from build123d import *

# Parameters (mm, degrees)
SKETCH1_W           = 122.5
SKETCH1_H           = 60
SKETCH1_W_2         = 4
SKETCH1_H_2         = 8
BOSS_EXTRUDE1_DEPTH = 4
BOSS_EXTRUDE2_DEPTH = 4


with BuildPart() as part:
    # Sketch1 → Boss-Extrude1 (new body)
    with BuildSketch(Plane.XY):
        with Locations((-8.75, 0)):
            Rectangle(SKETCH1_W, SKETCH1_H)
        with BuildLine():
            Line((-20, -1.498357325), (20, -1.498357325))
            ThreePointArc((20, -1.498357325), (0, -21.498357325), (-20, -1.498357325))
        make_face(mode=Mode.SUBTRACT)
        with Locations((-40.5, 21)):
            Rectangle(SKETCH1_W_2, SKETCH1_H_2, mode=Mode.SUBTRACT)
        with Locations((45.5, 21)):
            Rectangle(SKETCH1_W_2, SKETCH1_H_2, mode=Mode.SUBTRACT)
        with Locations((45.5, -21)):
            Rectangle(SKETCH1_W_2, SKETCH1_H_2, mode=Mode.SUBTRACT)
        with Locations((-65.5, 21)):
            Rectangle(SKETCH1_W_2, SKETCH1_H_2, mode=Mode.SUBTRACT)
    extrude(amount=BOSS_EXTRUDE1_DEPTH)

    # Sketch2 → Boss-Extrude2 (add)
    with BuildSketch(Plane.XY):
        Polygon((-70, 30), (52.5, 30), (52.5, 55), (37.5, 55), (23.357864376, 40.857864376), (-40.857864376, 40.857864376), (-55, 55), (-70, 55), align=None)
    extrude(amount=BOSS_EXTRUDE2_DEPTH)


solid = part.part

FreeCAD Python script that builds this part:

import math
import FreeCAD as App
import Part
import Sketcher

V = App.Vector
Q = App.Units.Quantity


def add_polygon(sketch, points):
    """Adds a closed chain of lines whose ends are joined by coincident constraints."""
    first, n = sketch.GeometryCount, len(points)
    for a, b in zip(points, points[1:] + points[:1]):
        sketch.addGeometry(Part.LineSegment(App.Vector(*a, 0), App.Vector(*b, 0)), False)
    for i in range(n):
        sketch.addConstraint(Sketcher.Constraint("Coincident", first + i, 2, first + (i + 1) % n, 1))

doc = App.newDocument("Part")
params = doc.addObject("Spreadsheet::Sheet", "Params")
for row, (alias, value) in enumerate([
    ("sketch1_radius", "20 mm"),
    ("sketch1_width", "4 mm"),
    ("sketch1_height", "60 mm"),
    ("sketch1_height2", "8 mm"),
    ("sketch1_width2", "122.5 mm"),
    ("pad1_length", "4 mm"),
    ("sketch2_width", "15 mm"),
    ("sketch2_height", "25 mm"),
    ("sketch2_length", "20 mm"),
    ("sketch2_width2", "122.5 mm"),
    ("pad2_length", "4 mm"),
], start=1):
    params.set(f"A{row}", alias)
    params.set(f"B{row}", "=" + value)
    params.setAlias(f"B{row}", alias)

body = doc.addObject("PartDesign::Body", "Body")

# Sketch on XY plane
sketch1 = body.newObject("Sketcher::SketchObject", "Sketch")
sketch1.AttachmentSupport = (doc.getObject("XY_Plane"), [""])
sketch1.MapMode = "FlatFace"
add_polygon(sketch1, [(-70, 30), (-70, -30), (52.5, -30), (52.5, 30)])  # lines 0-3
add_polygon(sketch1, [(47.5, -25), (43.5, -25), (43.5, -17), (47.5, -17)])  # lines 4-7
sketch1.addGeometry(Part.ArcOfCircle(Part.Circle(V(0, -1.5, 0), V(0, 0, 1), 20), math.radians(180), math.radians(360)), False)  # 8
sketch1.addGeometry(Part.LineSegment(V(-20, -1.5, 0), V(20, -1.5, 0)), False)  # 9
add_polygon(sketch1, [(-63.5, 17), (-67.5, 17), (-67.5, 25), (-63.5, 25)])  # lines 10-13
add_polygon(sketch1, [(-38.5, 17), (-42.5, 17), (-42.5, 25), (-38.5, 25)])  # lines 14-17
add_polygon(sketch1, [(47.5, 17), (43.5, 17), (43.5, 25), (47.5, 25)])  # lines 18-21
sketch1.addConstraint([
    Sketcher.Constraint("Coincident", 8, 1, 9, 1),
    Sketcher.Constraint("Coincident", 9, 2, 8, 2),
    Sketcher.Constraint("Vertical", 0),
    Sketcher.Constraint("Horizontal", 1),
    Sketcher.Constraint("Vertical", 2),
    Sketcher.Constraint("Horizontal", 3),
    Sketcher.Constraint("Horizontal", 4),
    Sketcher.Constraint("Vertical", 5),
    Sketcher.Constraint("Horizontal", 6),
    Sketcher.Constraint("Vertical", 7),
    Sketcher.Constraint("Horizontal", 9),
    Sketcher.Constraint("Horizontal", 10),
    Sketcher.Constraint("Vertical", 11),
    Sketcher.Constraint("Horizontal", 12),
    Sketcher.Constraint("Vertical", 13),
    Sketcher.Constraint("Horizontal", 14),
    Sketcher.Constraint("Vertical", 15),
    Sketcher.Constraint("Horizontal", 16),
    Sketcher.Constraint("Vertical", 17),
    Sketcher.Constraint("Horizontal", 18),
    Sketcher.Constraint("Vertical", 19),
    Sketcher.Constraint("Horizontal", 20),
    Sketcher.Constraint("Vertical", 21),
    Sketcher.Constraint("Symmetric", 5, 2, 18, 2, -1),
    Sketcher.Constraint("Symmetric", 7, 2, 20, 2, -1),
    Sketcher.Constraint("PointOnObject", 8, 3, -2),
    Sketcher.Constraint("Horizontal", 13, 2, 14, 2),
    Sketcher.Constraint("Horizontal", 12, 2, 15, 2),
    Sketcher.Constraint("Horizontal", 17, 2, 18, 2),
    Sketcher.Constraint("Horizontal", 16, 2, 19, 2),
    Sketcher.Constraint("Equal", 6, 10),
    Sketcher.Constraint("Equal", 12, 14),
    Sketcher.Constraint("Radius", 8, Q("20 mm")),
    Sketcher.Constraint("DistanceX", 4, 2, 4, 1, Q("4 mm")),
    Sketcher.Constraint("DistanceY", 0, 2, 0, 1, Q("60 mm")),
    Sketcher.Constraint("DistanceY", 5, 1, 5, 2, Q("8 mm")),
    Sketcher.Constraint("DistanceX", 1, 1, 1, 2, Q("122.5 mm")),
    Sketcher.Constraint("DistanceX", 0, 2, -1, 1, Q("70 mm")),
    Sketcher.Constraint("DistanceY", 0, 2, -1, 1, Q("30 mm")),
    Sketcher.Constraint("DistanceY", 4, 2, -1, 1, Q("25 mm")),
    Sketcher.Constraint("DistanceX", 4, 2, 1, 2, Q("9 mm")),
    Sketcher.Constraint("DistanceX", 13, 2, 14, 2, Q("21 mm")),
    Sketcher.Constraint("DistanceX", 10, 2, -1, 1, Q("67.5 mm")),
    Sketcher.Constraint("DistanceY", 8, 3, -1, 1, Q("1.498357 mm")),
    Sketcher.Constraint("DistanceY", 8, 1, -1, 1, Q("1.498357 mm")),
])
sketch1.setExpression("Constraints[52]", "Params.sketch1_radius")
sketch1.setExpression("Constraints[53]", "Params.sketch1_width")
sketch1.setExpression("Constraints[54]", "Params.sketch1_height")
sketch1.setExpression("Constraints[55]", "Params.sketch1_height2")
sketch1.setExpression("Constraints[56]", "Params.sketch1_width2")
pad1 = body.newObject("PartDesign::Pad", "Pad")
pad1.Profile = sketch1
pad1.setExpression("Length", "Params.pad1_length")

# Sketch on XY plane
sketch2 = body.newObject("Sketcher::SketchObject", "Sketch001")
sketch2.AttachmentSupport = (doc.getObject("XY_Plane"), [""])
sketch2.MapMode = "FlatFace"
add_polygon(sketch2, [(-70, 30), (52, 30), (52, 55), (38, 55), (23, 41), (-41, 41), (-55, 55), (-70, 55)])  # lines 0-7
sketch2.addConstraint([
    Sketcher.Constraint("Horizontal", 0),
    Sketcher.Constraint("Vertical", 1),
    Sketcher.Constraint("Horizontal", 2),
    Sketcher.Constraint("Horizontal", 4),
    Sketcher.Constraint("Horizontal", 6),
    Sketcher.Constraint("Vertical", 7),
    Sketcher.Constraint("Perpendicular", 3, 5),
    Sketcher.Constraint("Horizontal", 2, 2, 5, 2),
    Sketcher.Constraint("Equal", 2, 6),
    Sketcher.Constraint("Equal", 3, 5),
    Sketcher.Constraint("DistanceX", 2, 2, 2, 1, Q("15 mm")),
    Sketcher.Constraint("DistanceY", 1, 1, 1, 2, Q("25 mm")),
    Sketcher.Constraint("Distance", 3, Q("20 mm")),
    Sketcher.Constraint("DistanceX", 0, 1, 0, 2, Q("122.5 mm")),
    Sketcher.Constraint("DistanceY", -1, 1, 0, 2, Q("30 mm")),
    Sketcher.Constraint("DistanceX", 5, 2, -1, 1, Q("55 mm")),
])
sketch2.setExpression("Constraints[18]", "Params.sketch2_width")
sketch2.setExpression("Constraints[19]", "Params.sketch2_height")
sketch2.setExpression("Constraints[20]", "Params.sketch2_length")
sketch2.setExpression("Constraints[21]", "Params.sketch2_width2")
pad2 = body.newObject("PartDesign::Pad", "Pad001")
pad2.Profile = sketch2
pad2.setExpression("Length", "Params.pad2_length")

doc.recompute()
